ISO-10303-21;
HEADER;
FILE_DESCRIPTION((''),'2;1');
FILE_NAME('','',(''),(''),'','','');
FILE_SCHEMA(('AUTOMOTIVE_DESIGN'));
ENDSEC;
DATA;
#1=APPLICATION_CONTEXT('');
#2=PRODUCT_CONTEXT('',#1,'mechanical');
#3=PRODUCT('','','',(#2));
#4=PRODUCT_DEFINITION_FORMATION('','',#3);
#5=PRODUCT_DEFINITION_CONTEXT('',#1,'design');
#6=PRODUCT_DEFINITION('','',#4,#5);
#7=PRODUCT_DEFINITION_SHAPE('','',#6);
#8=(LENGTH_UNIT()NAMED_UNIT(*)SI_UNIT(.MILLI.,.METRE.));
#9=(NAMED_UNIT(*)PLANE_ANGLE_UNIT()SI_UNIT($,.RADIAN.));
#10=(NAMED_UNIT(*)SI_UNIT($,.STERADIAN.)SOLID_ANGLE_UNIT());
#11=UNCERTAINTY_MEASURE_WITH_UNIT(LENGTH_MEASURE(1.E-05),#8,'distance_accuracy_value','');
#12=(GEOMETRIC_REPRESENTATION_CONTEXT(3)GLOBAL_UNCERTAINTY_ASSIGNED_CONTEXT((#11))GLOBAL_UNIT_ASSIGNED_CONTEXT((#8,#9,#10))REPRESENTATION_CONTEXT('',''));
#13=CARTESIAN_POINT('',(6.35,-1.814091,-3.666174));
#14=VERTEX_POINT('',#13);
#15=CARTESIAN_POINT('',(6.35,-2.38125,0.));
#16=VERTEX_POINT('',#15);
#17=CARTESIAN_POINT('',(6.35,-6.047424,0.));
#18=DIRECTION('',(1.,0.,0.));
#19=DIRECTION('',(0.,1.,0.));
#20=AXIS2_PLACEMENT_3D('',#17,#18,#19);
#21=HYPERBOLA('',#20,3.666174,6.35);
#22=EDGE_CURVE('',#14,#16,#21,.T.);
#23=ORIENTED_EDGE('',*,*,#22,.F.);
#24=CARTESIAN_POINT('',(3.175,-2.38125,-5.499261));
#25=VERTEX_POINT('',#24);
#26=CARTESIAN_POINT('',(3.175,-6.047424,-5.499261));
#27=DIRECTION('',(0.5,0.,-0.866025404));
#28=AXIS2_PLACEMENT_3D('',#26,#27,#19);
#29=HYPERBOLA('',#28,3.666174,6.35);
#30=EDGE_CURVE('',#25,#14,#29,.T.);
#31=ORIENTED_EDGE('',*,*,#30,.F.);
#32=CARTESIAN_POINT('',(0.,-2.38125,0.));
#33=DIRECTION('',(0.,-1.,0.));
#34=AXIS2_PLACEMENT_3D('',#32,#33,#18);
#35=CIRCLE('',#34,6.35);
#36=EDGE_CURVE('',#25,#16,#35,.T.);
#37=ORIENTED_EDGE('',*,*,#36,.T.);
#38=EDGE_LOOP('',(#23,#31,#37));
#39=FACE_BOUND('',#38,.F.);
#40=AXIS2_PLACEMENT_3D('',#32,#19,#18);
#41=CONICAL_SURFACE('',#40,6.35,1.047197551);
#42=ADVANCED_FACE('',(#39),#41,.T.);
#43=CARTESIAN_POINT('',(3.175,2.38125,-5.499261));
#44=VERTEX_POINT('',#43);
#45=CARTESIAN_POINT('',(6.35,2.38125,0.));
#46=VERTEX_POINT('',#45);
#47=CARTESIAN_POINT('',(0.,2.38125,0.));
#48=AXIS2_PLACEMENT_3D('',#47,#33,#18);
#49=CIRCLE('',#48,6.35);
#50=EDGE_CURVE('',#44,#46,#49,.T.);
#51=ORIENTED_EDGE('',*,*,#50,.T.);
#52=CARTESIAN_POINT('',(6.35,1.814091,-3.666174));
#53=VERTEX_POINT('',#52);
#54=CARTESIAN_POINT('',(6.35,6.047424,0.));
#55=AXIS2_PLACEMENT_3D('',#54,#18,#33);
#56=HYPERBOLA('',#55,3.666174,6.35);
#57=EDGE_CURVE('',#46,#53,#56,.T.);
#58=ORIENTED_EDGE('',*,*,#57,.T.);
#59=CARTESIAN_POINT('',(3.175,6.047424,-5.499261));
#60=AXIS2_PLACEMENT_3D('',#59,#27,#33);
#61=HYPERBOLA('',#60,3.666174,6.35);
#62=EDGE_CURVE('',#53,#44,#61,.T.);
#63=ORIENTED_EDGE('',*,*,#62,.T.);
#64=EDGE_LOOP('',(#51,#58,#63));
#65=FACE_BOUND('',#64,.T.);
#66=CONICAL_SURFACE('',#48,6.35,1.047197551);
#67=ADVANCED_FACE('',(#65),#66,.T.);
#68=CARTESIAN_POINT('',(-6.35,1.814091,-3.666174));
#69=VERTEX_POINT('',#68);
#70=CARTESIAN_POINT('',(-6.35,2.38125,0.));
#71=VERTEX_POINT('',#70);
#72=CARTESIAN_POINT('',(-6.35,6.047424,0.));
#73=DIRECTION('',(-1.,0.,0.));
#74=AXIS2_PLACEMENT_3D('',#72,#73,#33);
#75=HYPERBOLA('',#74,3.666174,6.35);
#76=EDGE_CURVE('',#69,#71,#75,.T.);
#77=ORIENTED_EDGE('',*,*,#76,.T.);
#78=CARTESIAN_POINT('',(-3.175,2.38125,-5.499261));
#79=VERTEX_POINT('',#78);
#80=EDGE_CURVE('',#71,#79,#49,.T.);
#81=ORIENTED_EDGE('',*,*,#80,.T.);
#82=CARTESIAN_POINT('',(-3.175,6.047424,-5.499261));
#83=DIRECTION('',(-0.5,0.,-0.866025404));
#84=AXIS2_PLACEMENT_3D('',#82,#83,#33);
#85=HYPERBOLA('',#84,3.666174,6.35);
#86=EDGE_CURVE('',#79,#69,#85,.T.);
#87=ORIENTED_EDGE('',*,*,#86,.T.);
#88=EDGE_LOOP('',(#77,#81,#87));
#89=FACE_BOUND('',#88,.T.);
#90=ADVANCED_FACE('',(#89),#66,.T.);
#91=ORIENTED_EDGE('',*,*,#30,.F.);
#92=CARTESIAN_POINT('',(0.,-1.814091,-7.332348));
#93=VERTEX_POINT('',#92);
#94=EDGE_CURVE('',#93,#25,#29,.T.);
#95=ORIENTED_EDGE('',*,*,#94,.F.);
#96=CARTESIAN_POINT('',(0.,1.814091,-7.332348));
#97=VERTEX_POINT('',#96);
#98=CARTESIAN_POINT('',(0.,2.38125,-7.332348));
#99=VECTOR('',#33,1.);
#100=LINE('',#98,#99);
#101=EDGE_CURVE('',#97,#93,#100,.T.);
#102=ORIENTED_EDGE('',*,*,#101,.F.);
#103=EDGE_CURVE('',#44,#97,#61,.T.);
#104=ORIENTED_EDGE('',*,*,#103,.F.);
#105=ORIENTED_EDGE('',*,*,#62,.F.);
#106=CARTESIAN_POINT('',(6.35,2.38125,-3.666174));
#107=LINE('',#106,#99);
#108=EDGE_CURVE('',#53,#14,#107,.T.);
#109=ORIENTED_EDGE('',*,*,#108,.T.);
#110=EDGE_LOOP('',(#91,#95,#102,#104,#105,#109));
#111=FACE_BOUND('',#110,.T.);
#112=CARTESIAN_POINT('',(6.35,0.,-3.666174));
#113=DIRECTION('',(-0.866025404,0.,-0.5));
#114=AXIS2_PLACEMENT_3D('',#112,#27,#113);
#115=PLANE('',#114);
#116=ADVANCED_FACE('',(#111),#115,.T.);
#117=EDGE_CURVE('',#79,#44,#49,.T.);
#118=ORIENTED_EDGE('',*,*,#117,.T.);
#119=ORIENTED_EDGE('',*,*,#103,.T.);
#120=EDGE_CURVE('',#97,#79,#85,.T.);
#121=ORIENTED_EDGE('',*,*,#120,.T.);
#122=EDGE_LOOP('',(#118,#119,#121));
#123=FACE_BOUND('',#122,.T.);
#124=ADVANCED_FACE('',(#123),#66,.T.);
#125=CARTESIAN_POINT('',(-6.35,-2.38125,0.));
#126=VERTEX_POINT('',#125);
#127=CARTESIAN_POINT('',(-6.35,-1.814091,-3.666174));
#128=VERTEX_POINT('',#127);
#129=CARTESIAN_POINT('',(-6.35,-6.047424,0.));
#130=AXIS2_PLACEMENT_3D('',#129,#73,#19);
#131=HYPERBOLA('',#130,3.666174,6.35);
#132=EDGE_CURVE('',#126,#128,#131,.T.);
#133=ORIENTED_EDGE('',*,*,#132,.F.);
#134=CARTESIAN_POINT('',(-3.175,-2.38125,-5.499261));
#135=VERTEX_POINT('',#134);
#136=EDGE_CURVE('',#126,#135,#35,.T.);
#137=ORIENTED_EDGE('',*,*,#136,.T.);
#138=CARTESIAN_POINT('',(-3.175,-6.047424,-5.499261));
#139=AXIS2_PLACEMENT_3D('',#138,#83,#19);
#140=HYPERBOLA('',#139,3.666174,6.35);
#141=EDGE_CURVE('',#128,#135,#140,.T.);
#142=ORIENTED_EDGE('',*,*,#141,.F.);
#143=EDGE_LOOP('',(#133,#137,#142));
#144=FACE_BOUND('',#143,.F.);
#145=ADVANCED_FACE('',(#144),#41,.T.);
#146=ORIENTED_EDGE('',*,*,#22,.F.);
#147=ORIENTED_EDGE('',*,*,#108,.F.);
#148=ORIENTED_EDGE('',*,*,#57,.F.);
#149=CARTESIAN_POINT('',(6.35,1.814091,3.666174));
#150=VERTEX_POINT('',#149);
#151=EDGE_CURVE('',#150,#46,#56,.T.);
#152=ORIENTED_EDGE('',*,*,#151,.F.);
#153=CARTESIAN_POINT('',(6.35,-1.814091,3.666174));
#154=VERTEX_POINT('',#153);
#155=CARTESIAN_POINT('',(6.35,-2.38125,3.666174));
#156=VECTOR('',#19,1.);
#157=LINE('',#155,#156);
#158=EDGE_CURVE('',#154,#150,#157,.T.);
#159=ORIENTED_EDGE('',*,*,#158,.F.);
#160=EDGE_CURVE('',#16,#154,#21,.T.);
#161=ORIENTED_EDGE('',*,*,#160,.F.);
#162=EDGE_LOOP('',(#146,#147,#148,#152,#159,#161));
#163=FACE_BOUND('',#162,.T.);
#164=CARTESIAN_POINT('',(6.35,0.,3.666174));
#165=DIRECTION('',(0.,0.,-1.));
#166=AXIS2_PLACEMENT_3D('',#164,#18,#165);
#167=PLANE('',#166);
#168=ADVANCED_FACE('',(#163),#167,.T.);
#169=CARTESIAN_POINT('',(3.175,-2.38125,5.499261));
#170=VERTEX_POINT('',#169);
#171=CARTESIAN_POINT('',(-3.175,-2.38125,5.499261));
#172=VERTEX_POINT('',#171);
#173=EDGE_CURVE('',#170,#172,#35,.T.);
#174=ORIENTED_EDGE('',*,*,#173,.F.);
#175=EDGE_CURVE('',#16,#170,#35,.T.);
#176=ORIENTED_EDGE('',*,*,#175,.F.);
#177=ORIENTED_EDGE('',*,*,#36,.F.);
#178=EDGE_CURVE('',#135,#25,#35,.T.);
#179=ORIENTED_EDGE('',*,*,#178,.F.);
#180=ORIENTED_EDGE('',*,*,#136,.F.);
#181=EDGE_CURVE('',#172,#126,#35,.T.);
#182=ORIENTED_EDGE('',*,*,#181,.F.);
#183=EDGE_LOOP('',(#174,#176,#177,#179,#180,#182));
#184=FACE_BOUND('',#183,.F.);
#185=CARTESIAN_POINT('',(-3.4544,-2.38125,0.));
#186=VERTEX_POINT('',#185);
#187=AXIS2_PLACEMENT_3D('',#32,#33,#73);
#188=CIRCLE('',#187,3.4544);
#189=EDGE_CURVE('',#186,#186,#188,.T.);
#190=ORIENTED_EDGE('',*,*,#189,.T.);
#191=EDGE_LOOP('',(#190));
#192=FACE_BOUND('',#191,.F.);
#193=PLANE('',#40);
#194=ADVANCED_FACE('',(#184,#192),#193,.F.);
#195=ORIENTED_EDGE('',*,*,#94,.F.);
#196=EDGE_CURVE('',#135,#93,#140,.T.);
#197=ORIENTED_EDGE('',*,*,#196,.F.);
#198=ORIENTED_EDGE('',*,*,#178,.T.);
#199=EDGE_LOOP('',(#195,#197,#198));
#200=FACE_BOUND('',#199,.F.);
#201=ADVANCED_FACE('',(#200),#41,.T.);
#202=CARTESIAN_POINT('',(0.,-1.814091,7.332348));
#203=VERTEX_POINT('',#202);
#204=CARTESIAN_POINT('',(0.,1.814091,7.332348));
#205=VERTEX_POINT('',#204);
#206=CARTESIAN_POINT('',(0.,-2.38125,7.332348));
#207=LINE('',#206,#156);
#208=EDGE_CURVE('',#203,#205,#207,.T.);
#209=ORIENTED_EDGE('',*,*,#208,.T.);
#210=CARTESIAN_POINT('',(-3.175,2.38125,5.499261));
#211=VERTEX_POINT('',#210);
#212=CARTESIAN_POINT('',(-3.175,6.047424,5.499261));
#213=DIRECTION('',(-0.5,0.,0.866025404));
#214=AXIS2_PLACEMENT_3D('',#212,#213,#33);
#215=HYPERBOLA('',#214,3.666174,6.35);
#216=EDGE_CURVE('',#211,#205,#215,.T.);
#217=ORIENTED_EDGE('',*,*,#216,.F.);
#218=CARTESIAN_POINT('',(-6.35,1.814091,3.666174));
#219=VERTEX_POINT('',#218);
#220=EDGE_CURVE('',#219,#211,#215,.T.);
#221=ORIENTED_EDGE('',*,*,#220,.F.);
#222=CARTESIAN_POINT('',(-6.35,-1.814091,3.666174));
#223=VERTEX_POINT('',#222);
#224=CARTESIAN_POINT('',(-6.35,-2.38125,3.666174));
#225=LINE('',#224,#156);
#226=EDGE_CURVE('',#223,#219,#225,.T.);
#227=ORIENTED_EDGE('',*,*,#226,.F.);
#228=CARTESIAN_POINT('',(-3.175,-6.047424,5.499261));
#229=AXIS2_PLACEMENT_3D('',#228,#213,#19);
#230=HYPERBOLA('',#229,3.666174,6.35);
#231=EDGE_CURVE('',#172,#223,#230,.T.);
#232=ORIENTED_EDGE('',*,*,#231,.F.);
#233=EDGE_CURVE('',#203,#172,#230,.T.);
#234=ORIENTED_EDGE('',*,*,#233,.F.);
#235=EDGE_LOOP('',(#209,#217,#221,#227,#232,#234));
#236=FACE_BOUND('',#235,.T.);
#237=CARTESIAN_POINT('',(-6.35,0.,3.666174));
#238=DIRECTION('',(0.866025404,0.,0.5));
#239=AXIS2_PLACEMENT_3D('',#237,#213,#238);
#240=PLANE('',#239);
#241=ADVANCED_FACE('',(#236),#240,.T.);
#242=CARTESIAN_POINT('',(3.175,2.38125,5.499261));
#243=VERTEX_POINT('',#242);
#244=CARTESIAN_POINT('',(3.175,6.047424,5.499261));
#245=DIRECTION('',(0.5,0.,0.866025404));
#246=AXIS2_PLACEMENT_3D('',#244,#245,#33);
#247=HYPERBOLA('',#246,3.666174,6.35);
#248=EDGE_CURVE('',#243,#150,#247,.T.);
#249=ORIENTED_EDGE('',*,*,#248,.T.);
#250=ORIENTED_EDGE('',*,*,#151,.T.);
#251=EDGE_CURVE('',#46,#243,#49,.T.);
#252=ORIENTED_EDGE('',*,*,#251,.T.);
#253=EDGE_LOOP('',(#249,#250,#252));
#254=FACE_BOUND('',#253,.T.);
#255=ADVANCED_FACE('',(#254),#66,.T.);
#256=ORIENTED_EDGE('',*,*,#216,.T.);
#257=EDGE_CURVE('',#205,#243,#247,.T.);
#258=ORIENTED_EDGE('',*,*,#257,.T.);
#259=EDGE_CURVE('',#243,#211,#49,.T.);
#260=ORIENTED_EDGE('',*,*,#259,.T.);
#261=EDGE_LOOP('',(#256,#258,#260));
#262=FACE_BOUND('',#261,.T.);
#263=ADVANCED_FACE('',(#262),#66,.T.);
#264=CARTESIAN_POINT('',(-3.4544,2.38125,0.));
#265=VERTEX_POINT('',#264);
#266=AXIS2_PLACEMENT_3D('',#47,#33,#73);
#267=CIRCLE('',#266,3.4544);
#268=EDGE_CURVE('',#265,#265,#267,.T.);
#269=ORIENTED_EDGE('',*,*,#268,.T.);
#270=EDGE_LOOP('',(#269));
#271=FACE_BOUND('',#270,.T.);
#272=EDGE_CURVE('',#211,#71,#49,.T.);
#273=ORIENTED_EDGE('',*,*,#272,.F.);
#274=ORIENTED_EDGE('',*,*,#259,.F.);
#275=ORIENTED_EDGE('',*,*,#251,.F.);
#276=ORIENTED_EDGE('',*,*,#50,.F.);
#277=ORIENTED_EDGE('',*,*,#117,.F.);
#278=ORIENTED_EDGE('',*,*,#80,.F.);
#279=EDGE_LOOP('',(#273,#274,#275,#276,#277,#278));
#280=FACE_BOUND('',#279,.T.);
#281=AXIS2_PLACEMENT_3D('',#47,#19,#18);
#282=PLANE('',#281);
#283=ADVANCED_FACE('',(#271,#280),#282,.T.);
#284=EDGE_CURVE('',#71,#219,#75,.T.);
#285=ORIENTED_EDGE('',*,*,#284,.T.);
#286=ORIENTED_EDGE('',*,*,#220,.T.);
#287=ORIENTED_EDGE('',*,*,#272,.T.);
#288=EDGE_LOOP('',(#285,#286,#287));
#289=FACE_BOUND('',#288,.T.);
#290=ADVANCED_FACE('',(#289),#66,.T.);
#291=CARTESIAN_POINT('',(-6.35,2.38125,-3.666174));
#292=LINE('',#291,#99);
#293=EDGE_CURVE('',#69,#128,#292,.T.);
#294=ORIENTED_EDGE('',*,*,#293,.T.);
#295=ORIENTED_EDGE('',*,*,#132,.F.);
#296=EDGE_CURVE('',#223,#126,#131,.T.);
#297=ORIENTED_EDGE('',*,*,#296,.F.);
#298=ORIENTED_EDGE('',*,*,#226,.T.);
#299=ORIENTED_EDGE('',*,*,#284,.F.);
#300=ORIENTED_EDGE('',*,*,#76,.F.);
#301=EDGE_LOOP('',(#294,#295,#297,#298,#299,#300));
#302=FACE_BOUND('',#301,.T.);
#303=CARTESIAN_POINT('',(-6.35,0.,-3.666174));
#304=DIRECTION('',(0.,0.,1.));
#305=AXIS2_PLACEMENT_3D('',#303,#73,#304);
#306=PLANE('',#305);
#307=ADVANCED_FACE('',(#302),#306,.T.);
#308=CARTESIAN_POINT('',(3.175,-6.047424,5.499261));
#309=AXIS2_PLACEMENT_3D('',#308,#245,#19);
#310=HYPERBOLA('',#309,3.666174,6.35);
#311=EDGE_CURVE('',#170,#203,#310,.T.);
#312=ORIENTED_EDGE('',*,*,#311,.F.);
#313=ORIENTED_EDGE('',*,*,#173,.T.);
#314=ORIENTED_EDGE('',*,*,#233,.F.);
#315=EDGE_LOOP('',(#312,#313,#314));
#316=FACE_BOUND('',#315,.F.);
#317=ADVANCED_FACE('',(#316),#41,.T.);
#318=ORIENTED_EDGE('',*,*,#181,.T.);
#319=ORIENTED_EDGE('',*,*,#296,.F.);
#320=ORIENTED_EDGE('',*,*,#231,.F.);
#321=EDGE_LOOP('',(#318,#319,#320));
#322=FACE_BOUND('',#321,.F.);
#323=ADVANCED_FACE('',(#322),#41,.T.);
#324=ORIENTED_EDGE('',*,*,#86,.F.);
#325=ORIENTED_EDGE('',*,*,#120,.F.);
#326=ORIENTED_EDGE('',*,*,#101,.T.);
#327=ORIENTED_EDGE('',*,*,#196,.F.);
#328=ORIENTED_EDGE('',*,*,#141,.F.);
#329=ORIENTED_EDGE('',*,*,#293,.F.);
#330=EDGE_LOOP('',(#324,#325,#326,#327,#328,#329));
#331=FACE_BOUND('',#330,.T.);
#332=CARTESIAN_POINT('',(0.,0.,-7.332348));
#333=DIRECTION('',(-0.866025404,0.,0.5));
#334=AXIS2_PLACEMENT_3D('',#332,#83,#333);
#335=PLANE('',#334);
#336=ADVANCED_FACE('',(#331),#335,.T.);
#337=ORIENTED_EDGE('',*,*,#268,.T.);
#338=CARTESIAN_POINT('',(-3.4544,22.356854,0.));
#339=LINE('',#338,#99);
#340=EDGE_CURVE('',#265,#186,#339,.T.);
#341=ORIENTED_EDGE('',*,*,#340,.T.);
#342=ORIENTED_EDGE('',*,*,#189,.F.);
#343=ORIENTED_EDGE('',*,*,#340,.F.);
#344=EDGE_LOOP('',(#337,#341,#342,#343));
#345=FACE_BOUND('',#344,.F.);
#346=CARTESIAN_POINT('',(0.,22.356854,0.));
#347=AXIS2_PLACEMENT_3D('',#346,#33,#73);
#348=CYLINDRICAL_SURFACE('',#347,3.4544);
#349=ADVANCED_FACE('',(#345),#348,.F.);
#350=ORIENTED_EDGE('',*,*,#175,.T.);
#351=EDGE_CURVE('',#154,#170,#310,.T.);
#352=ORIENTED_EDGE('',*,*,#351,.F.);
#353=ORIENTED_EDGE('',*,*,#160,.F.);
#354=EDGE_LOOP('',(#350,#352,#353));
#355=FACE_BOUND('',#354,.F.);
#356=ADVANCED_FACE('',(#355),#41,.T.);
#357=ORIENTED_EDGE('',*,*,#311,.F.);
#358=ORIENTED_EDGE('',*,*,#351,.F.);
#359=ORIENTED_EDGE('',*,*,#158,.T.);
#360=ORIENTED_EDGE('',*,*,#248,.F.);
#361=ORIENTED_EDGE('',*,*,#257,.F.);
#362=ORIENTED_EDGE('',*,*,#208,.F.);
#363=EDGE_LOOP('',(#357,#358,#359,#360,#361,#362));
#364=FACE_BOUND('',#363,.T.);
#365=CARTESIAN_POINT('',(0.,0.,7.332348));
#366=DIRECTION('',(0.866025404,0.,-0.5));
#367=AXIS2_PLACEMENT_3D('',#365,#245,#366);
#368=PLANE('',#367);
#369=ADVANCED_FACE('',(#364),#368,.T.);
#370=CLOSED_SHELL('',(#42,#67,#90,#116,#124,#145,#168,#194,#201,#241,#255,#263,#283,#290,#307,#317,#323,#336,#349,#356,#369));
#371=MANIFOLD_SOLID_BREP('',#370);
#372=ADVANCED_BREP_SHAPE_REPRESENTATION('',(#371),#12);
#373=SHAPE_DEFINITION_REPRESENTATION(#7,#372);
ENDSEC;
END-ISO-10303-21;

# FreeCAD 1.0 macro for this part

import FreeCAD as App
import Part
import Sketcher

V = App.Vector
Q = App.Units.Quantity

doc = App.newDocument("Part")
body = doc.addObject("PartDesign::Body", "Body")

sketch1 = doc.addObject("Sketcher::SketchObject", "Sketch")
body.addObject(sketch1)
sketch1.AttachmentSupport = (doc.XZ_Plane, [""])
sketch1.MapMode = "FlatFace"
sketch1.addGeometry([
    Part.LineSegment(V(-6, -4, 0), V(-6, 4, 0)),
    Part.LineSegment(V(-6, 4, 0), V(0, 7, 0)),
    Part.LineSegment(V(0, 7, 0), V(6, 4, 0)),
    Part.LineSegment(V(6, 4, 0), V(6, -4, 0)),
    Part.LineSegment(V(6, -4, 0), V(0, -7, 0)),
    Part.LineSegment(V(0, -7, 0), V(-6, -4, 0)),
], False)
sketch1.addConstraint([
    Sketcher.Constraint("Coincident", 0, 2, 1, 1),
    Sketcher.Constraint("Coincident", 1, 2, 2, 1),
    Sketcher.Constraint("Coincident", 2, 2, 3, 1),
    Sketcher.Constraint("Coincident", 3, 2, 4, 1),
    Sketcher.Constraint("Coincident", 4, 2, 5, 1),
    Sketcher.Constraint("Coincident", 5, 2, 0, 1),
    Sketcher.Constraint("Vertical", 0),
    Sketcher.Constraint("Vertical", 3),
    Sketcher.Constraint("Symmetric", 0, 2, 3, 2, -1, 1),
    Sketcher.Constraint("Symmetric", 1, 2, 4, 2, -1, 1),
    Sketcher.Constraint("PointOnObject", 1, 2, -2),
    Sketcher.Constraint("Parallel", 2, 5),
    Sketcher.Constraint("Horizontal", 0, 2, 2, 2),
    Sketcher.Constraint("Angle", 1, Q("30 deg")),
    Sketcher.Constraint("DistanceX", 0, 2, 2, 2, Q("0.5 in")),
    Sketcher.Constraint("DistanceY", 0, 1, 0, 2, Q("7.332348 mm")),
])
pad1 = doc.addObject("PartDesign::Pad", "Pad")
body.addObject(pad1)
pad1.Profile = sketch1
pad1.Length = Q("0.1875 in")
pad1.Midplane = True

sketch2 = doc.addObject("Sketcher::SketchObject", "Sketch001")
body.addObject(sketch2)
sketch2.AttachmentSupport = (doc.XZ_Plane, [""])
sketch2.MapMode = "FlatFace"
sketch2.AttachmentOffset = App.Placement(V(0, 0, -0.09375 * 25.4), App.Rotation())
sketch2.addGeometry(Part.Circle(V(0, 0, 0), V(0, 0, 1), 3.5), False)
sketch2.addConstraint([
    Sketcher.Constraint("Coincident", 0, 3, -1, 1),
    Sketcher.Constraint("Diameter", 0, Q("0.272 in")),
])
doc.recompute()
hole = doc.addObject("PartDesign::Hole", "Hole")
body.addObject(hole)
hole.Profile = sketch2
hole.ThreadType = "None"
hole.Diameter = Q("0.272 in")
hole.DepthType = "ThroughAll"
hole.Reversed = True

sketch3 = doc.addObject("Sketcher::SketchObject", "Sketch002")
body.addObject(sketch3)
sketch3.AttachmentSupport = (doc.XZ_Plane, [""])
sketch3.MapMode = "FlatFace"
sketch3.AttachmentOffset = App.Placement(V(0, 0, -0.09375 * 25.4), App.Rotation())
sketch3.addGeometry([
    Part.LineSegment(V(-19, -20, 0), V(-19, 20, 0)),
    Part.LineSegment(V(-19, 20, 0), V(19, 20, 0)),
    Part.LineSegment(V(19, 20, 0), V(19, -20, 0)),
    Part.LineSegment(V(19, -20, 0), V(-19, -20, 0)),
    Part.Circle(V(0, 0, 0), V(0, 0, 1), 6),
], False)
sketch3.addConstraint([
    Sketcher.Constraint("Coincident", 0, 2, 1, 1),
    Sketcher.Constraint("Coincident", 1, 2, 2, 1),
    Sketcher.Constraint("Coincident", 2, 2, 3, 1),
    Sketcher.Constraint("Coincident", 3, 2, 0, 1),
    Sketcher.Constraint("Vertical", 0),
    Sketcher.Constraint("Horizontal", 1),
    Sketcher.Constraint("Vertical", 2),
    Sketcher.Constraint("Horizontal", 3),
    Sketcher.Constraint("Coincident", 4, 3, -1, 1),
    Sketcher.Constraint("Symmetric", 0, 2, 2, 2, -1, 1),
    Sketcher.Constraint("Diameter", 4, Q("0.5 in")),
    Sketcher.Constraint("DistanceX", 1, 1, 1, 2, Q("38.658 mm")),
    Sketcher.Constraint("DistanceY", 0, 1, 0, 2, Q("40.622 mm")),
])
pocket1 = doc.addObject("PartDesign::Pocket", "Pocket")
body.addObject(pocket1)
pocket1.Profile = sketch3
pocket1.Length = 5.7625
pocket1.Reversed = True
pocket1.TaperAngle = 60
doc.recompute()

mirrored = doc.addObject("PartDesign::Mirrored", "Mirrored")
body.addObject(mirrored)
mirrored.Originals = [pocket1]
mirrored.MirrorPlane = (doc.XZ_Plane, [""])
body.Tip = mirrored

doc.recompute()
